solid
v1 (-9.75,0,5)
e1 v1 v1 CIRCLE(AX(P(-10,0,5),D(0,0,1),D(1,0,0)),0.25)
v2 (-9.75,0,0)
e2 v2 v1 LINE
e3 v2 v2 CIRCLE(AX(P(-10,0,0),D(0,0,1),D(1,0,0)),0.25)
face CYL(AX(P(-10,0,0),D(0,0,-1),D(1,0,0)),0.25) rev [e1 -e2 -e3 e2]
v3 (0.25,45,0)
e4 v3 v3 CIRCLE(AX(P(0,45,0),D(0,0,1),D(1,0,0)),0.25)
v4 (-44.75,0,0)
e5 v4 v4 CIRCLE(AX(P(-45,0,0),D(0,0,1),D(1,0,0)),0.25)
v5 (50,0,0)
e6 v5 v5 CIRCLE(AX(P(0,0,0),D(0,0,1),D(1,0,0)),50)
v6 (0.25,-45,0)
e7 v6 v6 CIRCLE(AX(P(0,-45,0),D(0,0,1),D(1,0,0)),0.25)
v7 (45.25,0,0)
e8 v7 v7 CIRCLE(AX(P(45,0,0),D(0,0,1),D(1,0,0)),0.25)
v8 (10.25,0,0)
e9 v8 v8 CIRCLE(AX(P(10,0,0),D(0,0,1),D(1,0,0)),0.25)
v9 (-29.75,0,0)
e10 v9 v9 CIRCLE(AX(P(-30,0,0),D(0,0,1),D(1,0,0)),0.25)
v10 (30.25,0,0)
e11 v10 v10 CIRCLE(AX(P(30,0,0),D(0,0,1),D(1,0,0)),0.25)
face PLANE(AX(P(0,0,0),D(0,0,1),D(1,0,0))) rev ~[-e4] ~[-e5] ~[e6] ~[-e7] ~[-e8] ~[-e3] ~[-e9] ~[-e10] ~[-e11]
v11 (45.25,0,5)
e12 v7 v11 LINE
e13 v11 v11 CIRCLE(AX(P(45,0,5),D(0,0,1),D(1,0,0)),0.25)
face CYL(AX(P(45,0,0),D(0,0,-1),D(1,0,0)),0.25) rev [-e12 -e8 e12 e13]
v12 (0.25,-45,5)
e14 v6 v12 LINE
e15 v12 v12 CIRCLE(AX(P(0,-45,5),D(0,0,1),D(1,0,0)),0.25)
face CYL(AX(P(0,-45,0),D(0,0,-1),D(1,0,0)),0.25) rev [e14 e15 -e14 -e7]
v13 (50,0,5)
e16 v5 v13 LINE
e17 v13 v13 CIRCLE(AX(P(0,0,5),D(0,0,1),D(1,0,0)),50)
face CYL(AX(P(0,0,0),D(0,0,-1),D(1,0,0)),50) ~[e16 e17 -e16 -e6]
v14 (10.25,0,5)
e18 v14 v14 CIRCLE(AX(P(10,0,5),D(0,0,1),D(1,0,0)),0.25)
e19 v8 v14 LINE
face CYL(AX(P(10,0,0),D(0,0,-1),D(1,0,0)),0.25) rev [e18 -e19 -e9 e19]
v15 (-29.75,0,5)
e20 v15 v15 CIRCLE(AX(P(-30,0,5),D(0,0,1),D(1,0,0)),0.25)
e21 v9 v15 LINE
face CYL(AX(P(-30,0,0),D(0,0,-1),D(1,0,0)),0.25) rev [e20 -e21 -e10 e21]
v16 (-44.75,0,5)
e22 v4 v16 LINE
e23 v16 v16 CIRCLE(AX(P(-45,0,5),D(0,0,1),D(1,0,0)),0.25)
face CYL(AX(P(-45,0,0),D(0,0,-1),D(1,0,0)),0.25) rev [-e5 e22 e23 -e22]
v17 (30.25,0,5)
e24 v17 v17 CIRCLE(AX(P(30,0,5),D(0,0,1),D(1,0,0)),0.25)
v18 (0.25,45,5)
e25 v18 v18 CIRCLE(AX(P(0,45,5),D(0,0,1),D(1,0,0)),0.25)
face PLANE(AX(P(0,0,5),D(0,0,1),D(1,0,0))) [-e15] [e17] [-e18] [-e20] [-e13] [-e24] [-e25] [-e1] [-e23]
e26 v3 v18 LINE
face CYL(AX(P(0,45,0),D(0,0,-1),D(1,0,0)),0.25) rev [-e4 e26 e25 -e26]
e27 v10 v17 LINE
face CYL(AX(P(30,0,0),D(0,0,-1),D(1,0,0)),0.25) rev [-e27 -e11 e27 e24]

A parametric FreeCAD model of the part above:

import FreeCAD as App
import Part
import Sketcher
from FreeCAD import Vector
Q = App.Units.Quantity

doc = App.newDocument("Part")
body = doc.addObject("PartDesign::Body", "Body")

# Sketch on XY plane
sketch1 = body.newObject("Sketcher::SketchObject", "Sketch")
sketch1.AttachmentSupport = (doc.getObject("XY_Plane"), [""])
sketch1.MapMode = "FlatFace"
sketch1.addGeometry([
    Part.Circle(Vector(0, 0, 0), Vector(0, 0, 1), 50),  # 0
    Part.Circle(Vector(0, -45, 0), Vector(0, 0, 1), 0.25),  # 1
    Part.Circle(Vector(-45, 0, 0), Vector(0, 0, 1), 0.25),  # 2
    Part.Circle(Vector(-30, 0, 0), Vector(0, 0, 1), 0.25),  # 3
    Part.Circle(Vector(-10, 0, 0), Vector(0, 0, 1), 0.25),  # 4
    Part.Circle(Vector(10, 0, 0), Vector(0, 0, 1), 0.25),  # 5
    Part.Circle(Vector(30, 0, 0), Vector(0, 0, 1), 0.25),  # 6
    Part.Circle(Vector(45, 0, 0), Vector(0, 0, 1), 0.25),  # 7
    Part.Circle(Vector(0, 45, 0), Vector(0, 0, 1), 0.25),  # 8
], False)
sketch1.addConstraint([
    Sketcher.Constraint("Coincident", 0, 3, -1, 1),
    Sketcher.Constraint("Equal", 1, 2),
    Sketcher.Constraint("Equal", 2, 3),
    Sketcher.Constraint("Equal", 3, 4),
    Sketcher.Constraint("Equal", 4, 5),
    Sketcher.Constraint("Equal", 5, 6),
    Sketcher.Constraint("Equal", 6, 7),
    Sketcher.Constraint("Equal", 7, 8),
    Sketcher.Constraint("Symmetric", 4, 3, 5, 3, -1, 1),
    Sketcher.Constraint("Symmetric", 3, 3, 6, 3, -1, 1),
    Sketcher.Constraint("Symmetric", 2, 3, 7, 3, -1, 1),
    Sketcher.Constraint("Symmetric", 1, 3, 8, 3, -1, 1),
    Sketcher.Constraint("PointOnObject", 1, 3, -2),
    Sketcher.Constraint("PointOnObject", 2, 3, -1),
    Sketcher.Constraint("PointOnObject", 3, 3, -1),
    Sketcher.Constraint("PointOnObject", 4, 3, -1),
    Sketcher.Constraint("Diameter", 0, Q("100 mm")),
    Sketcher.Constraint("Diameter", 1, Q("0.5 mm")),
    Sketcher.Constraint("DistanceY", 1, 3, -1, 1, Q("45 mm")),
    Sketcher.Constraint("DistanceX", 2, 3, -1, 1, Q("45 mm")),
    Sketcher.Constraint("DistanceX", 3, 3, -1, 1, Q("30 mm")),
    Sketcher.Constraint("DistanceX", 4, 3, -1, 1, Q("10 mm")),
])
pad1 = body.newObject("PartDesign::Pad", "Pad")
pad1.Profile = sketch1
pad1.Length = 5

doc.recompute()
